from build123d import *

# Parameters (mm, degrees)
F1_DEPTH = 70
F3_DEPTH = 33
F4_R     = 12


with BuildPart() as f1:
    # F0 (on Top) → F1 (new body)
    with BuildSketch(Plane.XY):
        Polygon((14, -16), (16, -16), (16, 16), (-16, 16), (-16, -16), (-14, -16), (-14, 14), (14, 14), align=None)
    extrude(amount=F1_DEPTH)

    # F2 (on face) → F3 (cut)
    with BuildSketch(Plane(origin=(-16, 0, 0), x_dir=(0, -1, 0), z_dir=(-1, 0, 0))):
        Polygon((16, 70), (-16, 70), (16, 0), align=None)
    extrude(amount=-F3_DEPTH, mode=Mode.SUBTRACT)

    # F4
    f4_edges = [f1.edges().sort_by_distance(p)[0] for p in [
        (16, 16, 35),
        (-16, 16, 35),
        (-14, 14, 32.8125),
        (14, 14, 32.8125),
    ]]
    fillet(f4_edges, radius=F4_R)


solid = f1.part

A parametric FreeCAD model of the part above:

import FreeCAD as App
import Part
import Sketcher
from FreeCAD import Vector
Q = App.Units.Quantity


def edges_at(feature, points):
    """Names of the edges that pass closest to the given points."""
    edges = feature.Shape.Edges
    near = lambda p: min(range(len(edges)), key=lambda i: edges[i].distToShape(Part.Vertex(*p))[0])
    return sorted({f"Edge{near(p) + 1}" for p in points})

doc = App.newDocument("Part")
body = doc.addObject("PartDesign::Body", "Body")

# Sketch on XY plane
sketch1 = body.newObject("Sketcher::SketchObject", "Sketch")
sketch1.AttachmentSupport = (doc.getObject("XY_Plane"), [""])
sketch1.MapMode = "FlatFace"
sketch1.addGeometry(Part.LineSegment(Vector(14, -16, 0), Vector(16, -16, 0)), False)
sketch1.addGeometry(Part.LineSegment(Vector(16, -16, 0), Vector(16, 16, 0)), False)
sketch1.addGeometry(Part.LineSegment(Vector(16, 16, 0), Vector(-16, 16, 0)), False)
sketch1.addGeometry(Part.LineSegment(Vector(-16, 16, 0), Vector(-16, -16, 0)), False)
sketch1.addGeometry(Part.LineSegment(Vector(-16, -16, 0), Vector(-14, -16, 0)), False)
sketch1.addGeometry(Part.LineSegment(Vector(-14, -16, 0), Vector(-14, 14, 0)), False)
sketch1.addGeometry(Part.LineSegment(Vector(-14, 14, 0), Vector(14, 14, 0)), False)
sketch1.addGeometry(Part.LineSegment(Vector(14, 14, 0), Vector(14, -16, 0)), False)
sketch1.addConstraint(Sketcher.Constraint("Coincident", 0, 2, 1, 1))
sketch1.addConstraint(Sketcher.Constraint("Coincident", 1, 2, 2, 1))
sketch1.addConstraint(Sketcher.Constraint("Coincident", 2, 2, 3, 1))
sketch1.addConstraint(Sketcher.Constraint("Coincident", 3, 2, 4, 1))
sketch1.addConstraint(Sketcher.Constraint("Coincident", 4, 2, 5, 1))
sketch1.addConstraint(Sketcher.Constraint("Coincident", 5, 2, 6, 1))
sketch1.addConstraint(Sketcher.Constraint("Coincident", 6, 2, 7, 1))
sketch1.addConstraint(Sketcher.Constraint("Coincident", 7, 2, 0, 1))
sketch1.addConstraint(Sketcher.Constraint("Horizontal", 0))
sketch1.addConstraint(Sketcher.Constraint("Vertical", 1))
sketch1.addConstraint(Sketcher.Constraint("Horizontal", 2))
sketch1.addConstraint(Sketcher.Constraint("Vertical", 3))
sketch1.addConstraint(Sketcher.Constraint("Horizontal", 4))
sketch1.addConstraint(Sketcher.Constraint("Vertical", 5))
sketch1.addConstraint(Sketcher.Constraint("Horizontal", 6))
sketch1.addConstraint(Sketcher.Constraint("Vertical", 7))
sketch1.addConstraint(Sketcher.Constraint("Symmetric", 0, 2, 2, 2, -1, 1))
sketch1.addConstraint(Sketcher.Constraint("Symmetric", 4, 2, 7, 2, -2))
sketch1.addConstraint(Sketcher.Constraint("Equal", 2, 1))
sketch1.addConstraint(Sketcher.Constraint("DistanceX", 0, 1, 0, 2, Q("2 mm")))
sketch1.addConstraint(Sketcher.Constraint("DistanceX", 2, 2, 2, 1, Q("32 mm")))
sketch1.addConstraint(Sketcher.Constraint("DistanceY", 5, 1, 5, 2, Q("30 mm")))
pad1 = body.newObject("PartDesign::Pad", "Pad")
pad1.Profile = sketch1
pad1.Length = 70

# Sketch on YZ plane
sketch2 = body.newObject("Sketcher::SketchObject", "Sketch001")
sketch2.AttachmentSupport = (doc.getObject("YZ_Plane"), [""])
sketch2.MapMode = "FlatFace"
sketch2.AttachmentOffset = App.Placement(Vector(0, 0, -16), App.Rotation())
sketch2.addGeometry(Part.LineSegment(Vector(-16, 70, 0), Vector(16, 70, 0)), False)
sketch2.addGeometry(Part.LineSegment(Vector(16, 70, 0), Vector(-16, 0, 0)), False)
sketch2.addGeometry(Part.LineSegment(Vector(-16, 0, 0), Vector(-16, 70, 0)), False)
sketch2.addConstraint(Sketcher.Constraint("Coincident", 0, 2, 1, 1))
sketch2.addConstraint(Sketcher.Constraint("Coincident", 1, 2, 2, 1))
sketch2.addConstraint(Sketcher.Constraint("Coincident", 2, 2, 0, 1))
sketch2.addConstraint(Sketcher.Constraint("Horizontal", 0))
sketch2.addConstraint(Sketcher.Constraint("Vertical", 2))
sketch2.addConstraint(Sketcher.Constraint("PointOnObject", 1, 2, -1))
sketch2.addConstraint(Sketcher.Constraint("DistanceX", 0, 1, 0, 2, Q("32 mm")))
sketch2.addConstraint(Sketcher.Constraint("DistanceY", 2, 1, 2, 2, Q("70 mm")))
sketch2.addConstraint(Sketcher.Constraint("DistanceX", -1, 1, 0, 2, Q("16 mm")))
pocket1 = body.newObject("PartDesign::Pocket", "Pocket")
pocket1.Profile = sketch2
pocket1.Length = 33
pocket1.Reversed = True
doc.recompute()

fillet = body.newObject("PartDesign::Fillet", "Fillet")
fillet.Base = (pocket1, edges_at(pocket1, [
    (16, 16, 35),
    (-16, 16, 35),
    (-14, 14, 32.812),
    (14, 14, 32.812),
]))
fillet.Radius = 12

doc.recompute()
